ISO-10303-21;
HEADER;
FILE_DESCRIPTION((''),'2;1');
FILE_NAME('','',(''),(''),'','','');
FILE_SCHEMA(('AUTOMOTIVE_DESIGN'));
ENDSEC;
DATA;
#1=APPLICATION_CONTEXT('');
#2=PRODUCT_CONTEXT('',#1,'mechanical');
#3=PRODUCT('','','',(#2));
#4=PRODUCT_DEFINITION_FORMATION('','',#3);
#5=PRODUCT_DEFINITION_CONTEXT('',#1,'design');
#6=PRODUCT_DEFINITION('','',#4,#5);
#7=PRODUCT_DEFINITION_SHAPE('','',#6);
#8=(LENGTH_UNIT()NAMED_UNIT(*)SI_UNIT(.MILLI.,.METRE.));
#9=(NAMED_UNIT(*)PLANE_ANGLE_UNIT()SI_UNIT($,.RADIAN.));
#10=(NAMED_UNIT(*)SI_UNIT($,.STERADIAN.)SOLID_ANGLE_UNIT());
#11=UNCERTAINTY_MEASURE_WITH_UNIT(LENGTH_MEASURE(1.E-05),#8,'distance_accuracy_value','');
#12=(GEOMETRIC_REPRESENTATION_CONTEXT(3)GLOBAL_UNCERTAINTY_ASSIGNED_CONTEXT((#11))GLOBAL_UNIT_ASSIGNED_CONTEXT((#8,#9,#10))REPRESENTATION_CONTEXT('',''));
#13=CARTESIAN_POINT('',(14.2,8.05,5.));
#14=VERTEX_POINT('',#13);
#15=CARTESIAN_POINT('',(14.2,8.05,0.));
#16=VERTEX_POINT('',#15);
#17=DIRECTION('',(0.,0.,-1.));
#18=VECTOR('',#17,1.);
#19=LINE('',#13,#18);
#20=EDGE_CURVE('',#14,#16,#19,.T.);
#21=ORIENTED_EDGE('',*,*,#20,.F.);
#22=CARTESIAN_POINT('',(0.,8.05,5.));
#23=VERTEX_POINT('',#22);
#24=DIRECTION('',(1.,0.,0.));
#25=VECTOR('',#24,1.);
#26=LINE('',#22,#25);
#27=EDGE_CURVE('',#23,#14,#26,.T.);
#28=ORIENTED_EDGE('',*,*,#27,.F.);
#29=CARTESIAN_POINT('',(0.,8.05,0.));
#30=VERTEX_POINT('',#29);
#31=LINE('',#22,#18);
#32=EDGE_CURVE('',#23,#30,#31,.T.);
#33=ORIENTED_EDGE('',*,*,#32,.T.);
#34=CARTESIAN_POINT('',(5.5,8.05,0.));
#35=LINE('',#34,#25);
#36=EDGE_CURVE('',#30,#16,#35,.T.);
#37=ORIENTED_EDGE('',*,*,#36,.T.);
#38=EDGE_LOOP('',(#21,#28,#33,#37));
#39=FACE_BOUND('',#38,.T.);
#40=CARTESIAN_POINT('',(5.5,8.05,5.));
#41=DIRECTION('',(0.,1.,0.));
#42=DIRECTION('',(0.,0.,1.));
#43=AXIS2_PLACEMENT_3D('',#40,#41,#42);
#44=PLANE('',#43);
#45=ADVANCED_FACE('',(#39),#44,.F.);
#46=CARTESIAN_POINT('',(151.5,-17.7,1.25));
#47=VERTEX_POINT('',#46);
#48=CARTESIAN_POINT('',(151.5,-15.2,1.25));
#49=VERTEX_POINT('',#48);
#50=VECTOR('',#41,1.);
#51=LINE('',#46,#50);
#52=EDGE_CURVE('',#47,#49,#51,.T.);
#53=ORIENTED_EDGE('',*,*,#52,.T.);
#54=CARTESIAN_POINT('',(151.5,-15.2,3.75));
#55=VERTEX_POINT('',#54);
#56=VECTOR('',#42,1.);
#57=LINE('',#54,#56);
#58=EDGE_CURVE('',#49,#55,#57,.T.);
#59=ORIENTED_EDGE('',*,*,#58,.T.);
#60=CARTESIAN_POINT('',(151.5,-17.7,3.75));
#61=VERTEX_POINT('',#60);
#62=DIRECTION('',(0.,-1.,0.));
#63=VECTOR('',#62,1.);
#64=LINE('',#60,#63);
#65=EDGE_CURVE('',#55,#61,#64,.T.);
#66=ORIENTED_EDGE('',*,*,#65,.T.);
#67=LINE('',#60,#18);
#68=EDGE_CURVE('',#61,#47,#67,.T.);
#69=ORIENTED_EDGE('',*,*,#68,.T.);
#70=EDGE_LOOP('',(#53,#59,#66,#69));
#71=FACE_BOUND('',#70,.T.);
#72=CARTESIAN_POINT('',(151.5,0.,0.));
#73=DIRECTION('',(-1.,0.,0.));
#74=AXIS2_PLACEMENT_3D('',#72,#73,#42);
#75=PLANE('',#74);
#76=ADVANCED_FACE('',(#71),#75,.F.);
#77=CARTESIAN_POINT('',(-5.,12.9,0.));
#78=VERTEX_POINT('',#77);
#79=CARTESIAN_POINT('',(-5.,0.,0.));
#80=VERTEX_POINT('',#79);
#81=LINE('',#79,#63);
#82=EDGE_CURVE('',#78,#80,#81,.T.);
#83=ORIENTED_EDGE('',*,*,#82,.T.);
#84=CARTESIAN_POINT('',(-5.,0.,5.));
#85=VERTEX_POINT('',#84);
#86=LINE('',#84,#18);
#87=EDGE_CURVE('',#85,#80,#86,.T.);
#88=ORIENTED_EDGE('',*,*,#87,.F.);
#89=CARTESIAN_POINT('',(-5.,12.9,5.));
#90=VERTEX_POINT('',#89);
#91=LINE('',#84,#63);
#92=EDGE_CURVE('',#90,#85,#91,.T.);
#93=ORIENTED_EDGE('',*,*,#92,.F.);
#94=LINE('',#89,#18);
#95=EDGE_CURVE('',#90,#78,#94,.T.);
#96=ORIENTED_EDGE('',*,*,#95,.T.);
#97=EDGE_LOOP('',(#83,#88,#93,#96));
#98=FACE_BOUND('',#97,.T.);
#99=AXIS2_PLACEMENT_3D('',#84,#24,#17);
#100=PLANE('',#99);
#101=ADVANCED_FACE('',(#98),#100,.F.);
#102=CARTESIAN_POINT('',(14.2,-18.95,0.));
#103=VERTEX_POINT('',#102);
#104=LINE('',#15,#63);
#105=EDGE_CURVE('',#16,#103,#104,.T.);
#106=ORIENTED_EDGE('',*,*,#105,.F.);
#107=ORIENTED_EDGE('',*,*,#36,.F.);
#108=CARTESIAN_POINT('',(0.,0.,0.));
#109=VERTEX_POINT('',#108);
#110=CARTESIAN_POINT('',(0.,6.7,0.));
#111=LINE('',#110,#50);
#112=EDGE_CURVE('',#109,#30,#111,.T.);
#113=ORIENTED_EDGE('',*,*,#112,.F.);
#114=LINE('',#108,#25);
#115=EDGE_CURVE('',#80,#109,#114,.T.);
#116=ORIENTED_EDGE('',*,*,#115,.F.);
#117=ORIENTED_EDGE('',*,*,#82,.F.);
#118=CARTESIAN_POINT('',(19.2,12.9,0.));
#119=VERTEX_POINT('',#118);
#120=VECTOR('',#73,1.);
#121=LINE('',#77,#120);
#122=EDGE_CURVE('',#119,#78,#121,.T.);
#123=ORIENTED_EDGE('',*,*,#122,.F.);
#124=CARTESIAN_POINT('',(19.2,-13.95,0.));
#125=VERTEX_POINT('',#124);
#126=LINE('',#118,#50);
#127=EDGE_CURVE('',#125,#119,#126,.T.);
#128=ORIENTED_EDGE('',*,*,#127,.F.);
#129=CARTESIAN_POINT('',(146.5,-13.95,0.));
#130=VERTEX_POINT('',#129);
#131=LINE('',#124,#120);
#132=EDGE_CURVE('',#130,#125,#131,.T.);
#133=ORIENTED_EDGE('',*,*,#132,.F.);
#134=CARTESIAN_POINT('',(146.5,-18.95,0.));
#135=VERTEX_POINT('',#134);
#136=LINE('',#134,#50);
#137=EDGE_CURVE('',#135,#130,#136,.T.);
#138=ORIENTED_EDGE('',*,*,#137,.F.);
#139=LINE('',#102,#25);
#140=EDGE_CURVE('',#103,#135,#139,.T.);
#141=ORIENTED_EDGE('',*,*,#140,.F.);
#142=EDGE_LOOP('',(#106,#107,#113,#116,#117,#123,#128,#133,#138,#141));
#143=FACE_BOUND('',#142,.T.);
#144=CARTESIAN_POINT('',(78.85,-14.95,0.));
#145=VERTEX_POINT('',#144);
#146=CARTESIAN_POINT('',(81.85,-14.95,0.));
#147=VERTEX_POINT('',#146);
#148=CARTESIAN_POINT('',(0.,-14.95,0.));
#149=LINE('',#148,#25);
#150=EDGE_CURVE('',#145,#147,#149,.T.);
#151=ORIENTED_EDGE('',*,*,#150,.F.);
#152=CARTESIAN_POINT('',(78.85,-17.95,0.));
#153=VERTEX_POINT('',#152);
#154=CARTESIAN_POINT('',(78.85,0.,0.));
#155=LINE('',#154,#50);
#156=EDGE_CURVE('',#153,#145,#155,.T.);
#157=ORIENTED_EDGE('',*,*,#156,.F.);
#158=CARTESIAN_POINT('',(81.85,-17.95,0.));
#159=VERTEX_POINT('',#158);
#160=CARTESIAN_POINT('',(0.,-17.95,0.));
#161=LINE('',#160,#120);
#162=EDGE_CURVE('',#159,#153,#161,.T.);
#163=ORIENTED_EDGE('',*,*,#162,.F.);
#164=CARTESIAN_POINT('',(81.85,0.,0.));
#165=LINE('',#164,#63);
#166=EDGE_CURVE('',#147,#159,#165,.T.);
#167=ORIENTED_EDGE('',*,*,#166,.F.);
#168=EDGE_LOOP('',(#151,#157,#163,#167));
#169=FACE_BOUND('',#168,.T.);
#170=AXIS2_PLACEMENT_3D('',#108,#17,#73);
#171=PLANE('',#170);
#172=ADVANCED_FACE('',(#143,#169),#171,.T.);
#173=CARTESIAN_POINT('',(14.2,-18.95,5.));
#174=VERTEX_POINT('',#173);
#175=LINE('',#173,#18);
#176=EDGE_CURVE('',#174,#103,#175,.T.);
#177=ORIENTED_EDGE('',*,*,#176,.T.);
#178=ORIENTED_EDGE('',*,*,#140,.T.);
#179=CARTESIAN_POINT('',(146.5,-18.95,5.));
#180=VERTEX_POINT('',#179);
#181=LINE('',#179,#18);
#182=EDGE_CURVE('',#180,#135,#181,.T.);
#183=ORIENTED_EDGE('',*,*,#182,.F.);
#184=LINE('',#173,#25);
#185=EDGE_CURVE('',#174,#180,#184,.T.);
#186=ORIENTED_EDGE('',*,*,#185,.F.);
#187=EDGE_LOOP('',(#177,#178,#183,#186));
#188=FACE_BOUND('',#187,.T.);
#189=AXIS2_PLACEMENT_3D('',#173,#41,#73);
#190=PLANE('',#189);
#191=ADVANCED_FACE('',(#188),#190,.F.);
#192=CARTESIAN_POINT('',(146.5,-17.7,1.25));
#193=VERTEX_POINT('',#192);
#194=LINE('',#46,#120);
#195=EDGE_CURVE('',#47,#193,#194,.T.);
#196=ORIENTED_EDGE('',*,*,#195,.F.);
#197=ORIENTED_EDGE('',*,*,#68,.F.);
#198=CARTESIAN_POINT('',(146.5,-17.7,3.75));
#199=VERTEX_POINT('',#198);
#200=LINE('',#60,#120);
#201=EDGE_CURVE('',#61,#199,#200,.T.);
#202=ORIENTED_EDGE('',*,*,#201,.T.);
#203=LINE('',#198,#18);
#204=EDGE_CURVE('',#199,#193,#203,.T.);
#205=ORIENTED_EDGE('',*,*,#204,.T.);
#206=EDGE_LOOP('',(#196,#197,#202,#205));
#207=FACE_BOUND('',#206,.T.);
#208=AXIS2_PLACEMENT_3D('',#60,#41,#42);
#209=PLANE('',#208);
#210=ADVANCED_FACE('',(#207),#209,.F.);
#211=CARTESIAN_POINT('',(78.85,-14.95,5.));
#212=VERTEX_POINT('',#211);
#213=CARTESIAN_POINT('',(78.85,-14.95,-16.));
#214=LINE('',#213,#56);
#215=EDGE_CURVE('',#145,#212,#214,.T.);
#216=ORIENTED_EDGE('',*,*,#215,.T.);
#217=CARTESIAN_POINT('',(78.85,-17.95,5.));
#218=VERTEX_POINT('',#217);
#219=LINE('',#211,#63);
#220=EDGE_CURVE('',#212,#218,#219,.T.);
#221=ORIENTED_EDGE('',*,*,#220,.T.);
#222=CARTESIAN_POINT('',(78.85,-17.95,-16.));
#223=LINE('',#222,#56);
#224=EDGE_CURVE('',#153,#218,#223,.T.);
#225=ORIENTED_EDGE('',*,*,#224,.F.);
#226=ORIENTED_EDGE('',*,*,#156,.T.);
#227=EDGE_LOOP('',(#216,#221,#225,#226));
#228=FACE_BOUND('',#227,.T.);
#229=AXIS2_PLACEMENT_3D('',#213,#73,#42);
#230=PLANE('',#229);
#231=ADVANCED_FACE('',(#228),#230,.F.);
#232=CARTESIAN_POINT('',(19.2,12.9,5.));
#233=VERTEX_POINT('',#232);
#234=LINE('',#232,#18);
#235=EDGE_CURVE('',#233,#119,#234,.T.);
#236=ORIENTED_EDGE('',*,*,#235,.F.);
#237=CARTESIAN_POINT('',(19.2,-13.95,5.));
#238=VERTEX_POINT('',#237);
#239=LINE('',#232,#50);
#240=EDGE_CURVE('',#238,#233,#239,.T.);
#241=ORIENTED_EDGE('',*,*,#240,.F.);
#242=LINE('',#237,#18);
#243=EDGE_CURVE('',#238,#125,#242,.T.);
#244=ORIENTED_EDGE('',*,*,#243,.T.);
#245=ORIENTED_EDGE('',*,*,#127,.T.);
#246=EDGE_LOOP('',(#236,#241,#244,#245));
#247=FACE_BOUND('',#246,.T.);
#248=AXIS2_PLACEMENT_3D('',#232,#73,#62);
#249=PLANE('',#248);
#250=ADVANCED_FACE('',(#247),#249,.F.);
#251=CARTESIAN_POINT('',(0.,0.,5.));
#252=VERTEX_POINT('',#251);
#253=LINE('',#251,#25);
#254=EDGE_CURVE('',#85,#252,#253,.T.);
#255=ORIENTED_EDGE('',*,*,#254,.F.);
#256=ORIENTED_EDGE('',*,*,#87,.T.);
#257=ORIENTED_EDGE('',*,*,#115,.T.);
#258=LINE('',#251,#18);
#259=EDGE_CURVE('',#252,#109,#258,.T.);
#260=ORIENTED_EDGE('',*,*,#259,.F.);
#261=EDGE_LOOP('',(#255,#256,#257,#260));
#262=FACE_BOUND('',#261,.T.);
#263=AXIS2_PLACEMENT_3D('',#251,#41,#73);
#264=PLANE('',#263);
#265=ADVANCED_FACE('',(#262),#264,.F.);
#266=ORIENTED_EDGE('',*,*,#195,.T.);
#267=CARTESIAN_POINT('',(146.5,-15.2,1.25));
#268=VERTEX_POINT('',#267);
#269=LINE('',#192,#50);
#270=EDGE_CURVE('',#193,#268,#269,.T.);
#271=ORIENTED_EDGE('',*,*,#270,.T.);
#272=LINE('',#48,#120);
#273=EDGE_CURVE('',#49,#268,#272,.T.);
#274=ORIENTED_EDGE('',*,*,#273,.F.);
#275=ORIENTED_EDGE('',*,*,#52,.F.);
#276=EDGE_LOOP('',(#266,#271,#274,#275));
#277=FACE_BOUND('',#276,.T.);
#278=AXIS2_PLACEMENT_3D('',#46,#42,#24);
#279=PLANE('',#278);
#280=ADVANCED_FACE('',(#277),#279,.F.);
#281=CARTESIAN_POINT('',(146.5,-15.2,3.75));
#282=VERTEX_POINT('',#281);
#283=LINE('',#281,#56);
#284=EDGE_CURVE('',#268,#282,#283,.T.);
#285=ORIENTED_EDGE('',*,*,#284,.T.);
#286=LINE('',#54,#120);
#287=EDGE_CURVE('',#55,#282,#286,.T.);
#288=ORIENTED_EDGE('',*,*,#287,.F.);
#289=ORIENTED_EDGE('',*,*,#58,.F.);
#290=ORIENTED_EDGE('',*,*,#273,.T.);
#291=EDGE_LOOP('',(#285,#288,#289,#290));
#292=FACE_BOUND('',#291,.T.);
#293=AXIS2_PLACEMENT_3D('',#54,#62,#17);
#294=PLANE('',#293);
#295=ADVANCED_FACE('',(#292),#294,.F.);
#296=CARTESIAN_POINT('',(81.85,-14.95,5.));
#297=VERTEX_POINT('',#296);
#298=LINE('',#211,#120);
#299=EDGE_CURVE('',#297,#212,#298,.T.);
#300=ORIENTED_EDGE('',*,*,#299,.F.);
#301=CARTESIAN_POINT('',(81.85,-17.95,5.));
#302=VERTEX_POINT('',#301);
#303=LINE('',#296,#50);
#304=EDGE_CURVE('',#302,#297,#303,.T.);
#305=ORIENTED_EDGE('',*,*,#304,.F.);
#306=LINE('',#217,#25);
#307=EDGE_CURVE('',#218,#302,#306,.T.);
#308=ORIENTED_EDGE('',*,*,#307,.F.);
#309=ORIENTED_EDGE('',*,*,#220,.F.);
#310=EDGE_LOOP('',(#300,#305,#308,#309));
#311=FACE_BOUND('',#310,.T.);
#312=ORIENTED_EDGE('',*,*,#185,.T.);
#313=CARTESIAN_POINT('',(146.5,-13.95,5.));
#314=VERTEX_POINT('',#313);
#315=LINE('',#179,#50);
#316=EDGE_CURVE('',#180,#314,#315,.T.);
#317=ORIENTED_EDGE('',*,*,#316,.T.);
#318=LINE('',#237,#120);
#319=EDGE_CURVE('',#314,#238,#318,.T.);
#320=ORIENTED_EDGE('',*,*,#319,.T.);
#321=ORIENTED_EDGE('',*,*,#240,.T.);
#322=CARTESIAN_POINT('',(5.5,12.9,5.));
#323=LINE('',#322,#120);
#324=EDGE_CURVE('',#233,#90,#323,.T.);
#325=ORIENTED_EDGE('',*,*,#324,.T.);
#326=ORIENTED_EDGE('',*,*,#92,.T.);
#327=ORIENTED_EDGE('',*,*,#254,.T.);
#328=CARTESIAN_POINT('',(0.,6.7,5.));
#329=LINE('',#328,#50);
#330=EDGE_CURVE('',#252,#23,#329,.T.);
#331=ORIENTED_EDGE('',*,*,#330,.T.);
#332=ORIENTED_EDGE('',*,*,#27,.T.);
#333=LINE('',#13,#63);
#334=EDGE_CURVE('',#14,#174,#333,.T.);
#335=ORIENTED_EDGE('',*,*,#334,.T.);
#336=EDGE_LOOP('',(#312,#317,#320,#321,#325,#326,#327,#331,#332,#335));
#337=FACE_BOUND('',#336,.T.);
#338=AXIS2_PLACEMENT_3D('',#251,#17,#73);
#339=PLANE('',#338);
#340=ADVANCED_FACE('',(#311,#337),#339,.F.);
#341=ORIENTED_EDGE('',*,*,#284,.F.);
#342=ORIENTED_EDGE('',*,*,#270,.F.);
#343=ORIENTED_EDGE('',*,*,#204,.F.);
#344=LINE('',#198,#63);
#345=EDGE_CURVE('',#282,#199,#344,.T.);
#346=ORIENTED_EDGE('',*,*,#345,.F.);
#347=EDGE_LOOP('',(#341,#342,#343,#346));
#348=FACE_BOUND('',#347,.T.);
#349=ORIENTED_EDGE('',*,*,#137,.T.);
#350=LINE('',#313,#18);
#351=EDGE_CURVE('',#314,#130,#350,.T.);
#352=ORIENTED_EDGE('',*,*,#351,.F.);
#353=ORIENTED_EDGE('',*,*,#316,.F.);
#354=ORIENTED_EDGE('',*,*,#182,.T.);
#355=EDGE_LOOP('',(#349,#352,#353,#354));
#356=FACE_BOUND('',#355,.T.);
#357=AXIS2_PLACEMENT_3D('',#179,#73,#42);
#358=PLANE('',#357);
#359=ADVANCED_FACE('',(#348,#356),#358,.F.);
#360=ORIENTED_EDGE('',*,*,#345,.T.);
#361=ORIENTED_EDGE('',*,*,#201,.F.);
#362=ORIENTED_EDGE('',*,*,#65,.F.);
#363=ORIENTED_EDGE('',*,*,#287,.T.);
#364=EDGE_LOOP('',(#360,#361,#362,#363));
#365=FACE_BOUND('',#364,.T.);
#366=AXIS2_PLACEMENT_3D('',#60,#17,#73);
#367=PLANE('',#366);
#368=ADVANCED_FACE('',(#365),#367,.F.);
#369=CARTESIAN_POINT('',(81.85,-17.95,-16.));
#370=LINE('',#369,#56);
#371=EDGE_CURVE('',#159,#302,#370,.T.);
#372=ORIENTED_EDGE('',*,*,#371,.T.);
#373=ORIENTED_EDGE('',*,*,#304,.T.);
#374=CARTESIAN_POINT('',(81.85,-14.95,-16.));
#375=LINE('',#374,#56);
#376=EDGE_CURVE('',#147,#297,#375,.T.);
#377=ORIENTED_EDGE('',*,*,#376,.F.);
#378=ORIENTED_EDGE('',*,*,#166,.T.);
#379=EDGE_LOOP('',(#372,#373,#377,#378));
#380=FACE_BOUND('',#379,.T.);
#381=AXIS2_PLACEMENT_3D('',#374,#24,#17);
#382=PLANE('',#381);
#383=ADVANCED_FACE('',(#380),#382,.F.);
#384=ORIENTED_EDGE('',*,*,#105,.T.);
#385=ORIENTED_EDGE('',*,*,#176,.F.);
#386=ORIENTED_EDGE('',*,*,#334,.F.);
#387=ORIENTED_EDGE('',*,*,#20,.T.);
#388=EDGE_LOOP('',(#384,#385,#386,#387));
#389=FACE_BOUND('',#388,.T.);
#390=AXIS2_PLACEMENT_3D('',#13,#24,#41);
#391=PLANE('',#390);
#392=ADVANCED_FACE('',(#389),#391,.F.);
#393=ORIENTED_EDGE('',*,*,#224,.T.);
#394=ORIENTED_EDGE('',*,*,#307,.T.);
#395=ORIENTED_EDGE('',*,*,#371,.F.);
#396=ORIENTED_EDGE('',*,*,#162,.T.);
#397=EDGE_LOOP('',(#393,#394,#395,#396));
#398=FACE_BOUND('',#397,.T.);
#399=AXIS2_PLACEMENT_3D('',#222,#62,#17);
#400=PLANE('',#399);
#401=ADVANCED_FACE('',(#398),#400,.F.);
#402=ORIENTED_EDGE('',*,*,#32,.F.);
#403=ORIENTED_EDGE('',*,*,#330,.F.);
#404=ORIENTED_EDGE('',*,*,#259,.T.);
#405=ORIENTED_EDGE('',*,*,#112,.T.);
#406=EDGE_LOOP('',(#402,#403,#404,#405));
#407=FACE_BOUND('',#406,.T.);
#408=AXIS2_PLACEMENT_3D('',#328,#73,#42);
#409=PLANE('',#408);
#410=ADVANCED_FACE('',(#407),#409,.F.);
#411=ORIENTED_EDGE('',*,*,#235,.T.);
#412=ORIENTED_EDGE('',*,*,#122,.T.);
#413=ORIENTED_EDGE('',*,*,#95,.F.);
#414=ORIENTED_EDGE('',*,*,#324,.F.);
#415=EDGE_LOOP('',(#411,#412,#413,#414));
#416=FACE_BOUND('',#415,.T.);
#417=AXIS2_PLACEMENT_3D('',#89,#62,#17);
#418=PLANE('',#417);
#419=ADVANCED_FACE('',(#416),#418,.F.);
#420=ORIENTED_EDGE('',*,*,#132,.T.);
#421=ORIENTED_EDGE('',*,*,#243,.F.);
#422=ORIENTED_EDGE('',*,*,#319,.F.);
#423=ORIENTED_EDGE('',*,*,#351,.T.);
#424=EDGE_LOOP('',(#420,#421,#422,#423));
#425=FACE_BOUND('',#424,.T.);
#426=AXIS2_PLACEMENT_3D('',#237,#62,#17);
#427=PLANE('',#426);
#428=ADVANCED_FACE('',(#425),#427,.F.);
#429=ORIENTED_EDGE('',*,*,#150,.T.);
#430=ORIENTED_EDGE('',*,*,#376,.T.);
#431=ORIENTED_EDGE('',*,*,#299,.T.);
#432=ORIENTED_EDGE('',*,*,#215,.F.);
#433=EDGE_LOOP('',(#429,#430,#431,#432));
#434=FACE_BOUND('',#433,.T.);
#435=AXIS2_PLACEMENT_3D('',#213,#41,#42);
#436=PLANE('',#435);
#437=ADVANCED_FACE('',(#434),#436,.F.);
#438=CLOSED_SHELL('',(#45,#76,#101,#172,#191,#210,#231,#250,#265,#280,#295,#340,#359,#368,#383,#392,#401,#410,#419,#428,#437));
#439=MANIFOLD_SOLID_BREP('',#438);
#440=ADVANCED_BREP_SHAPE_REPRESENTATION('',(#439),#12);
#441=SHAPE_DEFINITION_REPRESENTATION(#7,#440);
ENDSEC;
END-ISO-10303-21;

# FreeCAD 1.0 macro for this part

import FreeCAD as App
import Part
import Sketcher
from FreeCAD import Vector
Q = App.Units.Quantity

doc = App.newDocument("Part")
body = doc.addObject("PartDesign::Body", "Body")

sketch1 = body.newObject("Sketcher::SketchObject", "Sketch")
sketch1.AttachmentSupport = (doc.getObject("XY_Plane"), [""])
sketch1.MapMode = "FlatFace"
sketch1.addGeometry([
    Part.LineSegment(Vector(0, 8, 0), Vector(14, 8, 0)),
    Part.LineSegment(Vector(14, 8, 0), Vector(14, -19, 0)),
    Part.LineSegment(Vector(14, -19, 0), Vector(146, -19, 0)),
    Part.LineSegment(Vector(146, -19, 0), Vector(146, -14, 0)),
    Part.LineSegment(Vector(146, -14, 0), Vector(19, -14, 0)),
    Part.LineSegment(Vector(19, -14, 0), Vector(19, 13, 0)),
    Part.LineSegment(Vector(19, 13, 0), Vector(-5, 13, 0)),
    Part.LineSegment(Vector(-5, 13, 0), Vector(-5, 0, 0)),
    Part.LineSegment(Vector(-5, 0, 0), Vector(0, 0, 0)),
    Part.LineSegment(Vector(0, 0, 0), Vector(0, 8, 0)),
], False)
sketch1.addConstraint([
    Sketcher.Constraint("Coincident", 0, 2, 1, 1),
    Sketcher.Constraint("Coincident", 1, 2, 2, 1),
    Sketcher.Constraint("Coincident", 2, 2, 3, 1),
    Sketcher.Constraint("Coincident", 3, 2, 4, 1),
    Sketcher.Constraint("Coincident", 4, 2, 5, 1),
    Sketcher.Constraint("Coincident", 5, 2, 6, 1),
    Sketcher.Constraint("Coincident", 6, 2, 7, 1),
    Sketcher.Constraint("Coincident", 7, 2, 8, 1),
    Sketcher.Constraint("Coincident", 8, 2, 9, 1),
    Sketcher.Constraint("Coincident", 9, 2, 0, 1),
    Sketcher.Constraint("Horizontal", 0),
    Sketcher.Constraint("Vertical", 1),
    Sketcher.Constraint("Horizontal", 2),
    Sketcher.Constraint("Vertical", 3),
    Sketcher.Constraint("Horizontal", 4),
    Sketcher.Constraint("Vertical", 5),
    Sketcher.Constraint("Horizontal", 6),
    Sketcher.Constraint("Vertical", 7),
    Sketcher.Constraint("Horizontal", 8),
    Sketcher.Constraint("Vertical", 9),
    Sketcher.Constraint("Coincident", 8, 2, -1, 1),
    Sketcher.Constraint("Equal", 8, 3),
    Sketcher.Constraint("DistanceX", 8, 1, 8, 2, Q("5 mm")),
    Sketcher.Constraint("DistanceY", 1, 2, 1, 1, Q("27 mm")),
    Sketcher.Constraint("DistanceX", 0, 1, 0, 2, Q("14.2 mm")),
    Sketcher.Constraint("DistanceX", 2, 1, 2, 2, Q("132.3 mm")),
    Sketcher.Constraint("DistanceX", 4, 2, 4, 1, Q("127.3 mm")),
    Sketcher.Constraint("DistanceY", 7, 2, 7, 1, Q("12.9 mm")),
    Sketcher.Constraint("DistanceY", 5, 1, 5, 2, Q("26.85 mm")),
])
pad1 = body.newObject("PartDesign::Pad", "Pad")
pad1.Profile = sketch1
pad1.Length = 5

sketch2 = body.newObject("Sketcher::SketchObject", "Sketch001")
sketch2.AttachmentSupport = (doc.getObject("YZ_Plane"), [""])
sketch2.MapMode = "FlatFace"
sketch2.AttachmentOffset = App.Placement(Vector(0, 0, 146.5), App.Rotation())
sketch2.addGeometry([
    Part.LineSegment(Vector(-15.2, 3.8, 0), Vector(-17.7, 3.8, 0)),
    Part.LineSegment(Vector(-17.7, 3.8, 0), Vector(-17.7, 1.2, 0)),
    Part.LineSegment(Vector(-17.7, 1.2, 0), Vector(-15.2, 1.2, 0)),
    Part.LineSegment(Vector(-15.2, 1.2, 0), Vector(-15.2, 3.8, 0)),
], False)
sketch2.addConstraint([
    Sketcher.Constraint("Coincident", 0, 2, 1, 1),
    Sketcher.Constraint("Coincident", 1, 2, 2, 1),
    Sketcher.Constraint("Coincident", 2, 2, 3, 1),
    Sketcher.Constraint("Coincident", 3, 2, 0, 1),
    Sketcher.Constraint("Horizontal", 0),
    Sketcher.Constraint("Vertical", 1),
    Sketcher.Constraint("Horizontal", 2),
    Sketcher.Constraint("Vertical", 3),
    Sketcher.Constraint("Equal", 2, 1),
    Sketcher.Constraint("DistanceX", 0, 2, 0, 1, Q("2.5 mm")),
    Sketcher.Constraint("DistanceX", 0, 2, -1, 1, Q("17.7 mm")),
    Sketcher.Constraint("DistanceY", -1, 1, 0, 2, Q("3.75 mm")),
])
pad2 = body.newObject("PartDesign::Pad", "Pad001")
pad2.Profile = sketch2
pad2.Length = 5

sketch3 = body.newObject("Sketcher::SketchObject", "Sketch002")
sketch3.AttachmentSupport = (doc.getObject("XY_Plane"), [""])
sketch3.MapMode = "FlatFace"
sketch3.AttachmentOffset = App.Placement(Vector(0, 0, 5), App.Rotation())
sketch3.addGeometry([
    Part.LineSegment(Vector(78.8, -14.9, 0), Vector(78.8, -17.9, 0)),
    Part.LineSegment(Vector(78.8, -17.9, 0), Vector(81.8, -17.9, 0)),
    Part.LineSegment(Vector(81.8, -17.9, 0), Vector(81.8, -14.9, 0)),
    Part.LineSegment(Vector(81.8, -14.9, 0), Vector(78.8, -14.9, 0)),
], False)
sketch3.addConstraint([
    Sketcher.Constraint("Coincident", 0, 2, 1, 1),
    Sketcher.Constraint("Coincident", 1, 2, 2, 1),
    Sketcher.Constraint("Coincident", 2, 2, 3, 1),
    Sketcher.Constraint("Coincident", 3, 2, 0, 1),
    Sketcher.Constraint("Vertical", 0),
    Sketcher.Constraint("Horizontal", 1),
    Sketcher.Constraint("Vertical", 2),
    Sketcher.Constraint("Horizontal", 3),
    Sketcher.Constraint("Equal", 3, 0),
    Sketcher.Constraint("DistanceX", 1, 1, 1, 2, Q("3 mm")),
    Sketcher.Constraint("DistanceX", -1, 1, 0, 2, Q("78.85 mm")),
    Sketcher.Constraint("DistanceY", 0, 2, -1, 1, Q("17.95 mm")),
])
pocket1 = body.newObject("PartDesign::Pocket", "Pocket")
pocket1.Profile = sketch3
pocket1.Length = 21

doc.recompute()
